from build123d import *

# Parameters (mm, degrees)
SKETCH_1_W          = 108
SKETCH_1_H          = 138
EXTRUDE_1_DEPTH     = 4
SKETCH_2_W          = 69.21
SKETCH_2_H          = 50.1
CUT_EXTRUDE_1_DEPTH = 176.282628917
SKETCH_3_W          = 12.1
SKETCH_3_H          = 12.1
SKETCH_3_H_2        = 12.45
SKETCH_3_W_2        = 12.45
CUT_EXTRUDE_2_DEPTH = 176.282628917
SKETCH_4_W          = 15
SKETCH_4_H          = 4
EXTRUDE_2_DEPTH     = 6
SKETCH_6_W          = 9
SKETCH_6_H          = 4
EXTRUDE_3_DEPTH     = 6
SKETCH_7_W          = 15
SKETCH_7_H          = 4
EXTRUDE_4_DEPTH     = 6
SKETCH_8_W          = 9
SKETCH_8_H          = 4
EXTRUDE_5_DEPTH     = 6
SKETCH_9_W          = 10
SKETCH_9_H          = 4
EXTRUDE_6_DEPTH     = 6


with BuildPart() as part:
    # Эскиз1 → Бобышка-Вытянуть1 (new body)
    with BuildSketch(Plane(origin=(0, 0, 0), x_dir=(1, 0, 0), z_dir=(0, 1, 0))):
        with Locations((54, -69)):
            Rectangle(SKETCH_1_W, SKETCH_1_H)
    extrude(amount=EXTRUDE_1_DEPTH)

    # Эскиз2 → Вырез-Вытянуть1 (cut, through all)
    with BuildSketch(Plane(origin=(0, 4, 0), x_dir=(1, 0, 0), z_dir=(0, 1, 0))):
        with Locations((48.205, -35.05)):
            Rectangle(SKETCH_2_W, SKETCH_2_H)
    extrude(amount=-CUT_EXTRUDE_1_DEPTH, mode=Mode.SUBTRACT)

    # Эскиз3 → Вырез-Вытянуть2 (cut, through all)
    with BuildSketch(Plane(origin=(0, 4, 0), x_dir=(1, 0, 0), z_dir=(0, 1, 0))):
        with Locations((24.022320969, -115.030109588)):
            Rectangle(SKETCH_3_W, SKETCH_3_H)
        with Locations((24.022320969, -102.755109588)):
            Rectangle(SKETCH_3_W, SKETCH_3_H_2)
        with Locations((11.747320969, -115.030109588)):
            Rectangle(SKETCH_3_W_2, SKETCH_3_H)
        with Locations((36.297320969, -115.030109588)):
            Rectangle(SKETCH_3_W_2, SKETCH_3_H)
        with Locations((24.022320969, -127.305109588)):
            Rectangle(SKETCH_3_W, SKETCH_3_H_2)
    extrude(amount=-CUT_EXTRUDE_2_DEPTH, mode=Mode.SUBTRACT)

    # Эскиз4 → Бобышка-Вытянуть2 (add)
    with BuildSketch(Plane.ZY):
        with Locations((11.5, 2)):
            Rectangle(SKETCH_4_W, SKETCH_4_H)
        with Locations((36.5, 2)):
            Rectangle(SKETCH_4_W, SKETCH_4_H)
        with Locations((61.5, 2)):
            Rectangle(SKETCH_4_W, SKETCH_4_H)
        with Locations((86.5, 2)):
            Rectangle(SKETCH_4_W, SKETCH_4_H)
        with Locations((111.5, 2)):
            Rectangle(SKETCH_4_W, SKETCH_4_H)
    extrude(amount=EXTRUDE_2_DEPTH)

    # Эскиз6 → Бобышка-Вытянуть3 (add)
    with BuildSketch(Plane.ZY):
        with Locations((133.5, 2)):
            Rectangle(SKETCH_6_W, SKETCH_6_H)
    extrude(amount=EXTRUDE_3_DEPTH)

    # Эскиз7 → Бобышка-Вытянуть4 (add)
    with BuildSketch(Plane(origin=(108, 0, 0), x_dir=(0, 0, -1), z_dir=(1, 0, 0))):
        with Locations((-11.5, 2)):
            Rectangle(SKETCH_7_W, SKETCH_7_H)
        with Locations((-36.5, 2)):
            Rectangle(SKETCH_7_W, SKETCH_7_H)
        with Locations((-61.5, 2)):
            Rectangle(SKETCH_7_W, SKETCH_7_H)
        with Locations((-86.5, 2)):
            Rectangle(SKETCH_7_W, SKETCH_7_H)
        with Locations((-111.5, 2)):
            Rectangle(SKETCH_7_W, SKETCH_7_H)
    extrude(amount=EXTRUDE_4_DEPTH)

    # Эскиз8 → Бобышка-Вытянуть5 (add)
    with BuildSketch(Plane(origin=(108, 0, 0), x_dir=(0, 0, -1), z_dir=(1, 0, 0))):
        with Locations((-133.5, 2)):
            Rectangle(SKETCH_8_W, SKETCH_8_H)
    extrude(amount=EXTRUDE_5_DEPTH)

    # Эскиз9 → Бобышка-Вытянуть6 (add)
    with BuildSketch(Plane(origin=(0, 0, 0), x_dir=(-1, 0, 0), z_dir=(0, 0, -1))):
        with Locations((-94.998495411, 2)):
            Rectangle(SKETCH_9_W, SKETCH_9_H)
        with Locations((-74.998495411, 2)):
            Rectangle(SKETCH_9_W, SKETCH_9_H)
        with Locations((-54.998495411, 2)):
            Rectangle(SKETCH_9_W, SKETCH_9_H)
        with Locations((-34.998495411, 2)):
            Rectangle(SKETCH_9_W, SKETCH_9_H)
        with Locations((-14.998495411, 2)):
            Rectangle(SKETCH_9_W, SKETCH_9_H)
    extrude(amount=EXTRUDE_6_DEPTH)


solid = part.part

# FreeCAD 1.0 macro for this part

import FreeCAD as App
import Part
import Sketcher
Q = App.Units.Quantity


def add_polygon(sketch, points):
    """Adds a closed chain of lines whose ends are joined by coincident constraints."""
    first, n = sketch.GeometryCount, len(points)
    for a, b in zip(points, points[1:] + points[:1]):
        sketch.addGeometry(Part.LineSegment(App.Vector(*a, 0), App.Vector(*b, 0)), False)
    for i in range(n):
        sketch.addConstraint(Sketcher.Constraint("Coincident", first + i, 2, first + (i + 1) % n, 1))

doc = App.newDocument("Part")
body = doc.addObject("PartDesign::Body", "Body")

# Sketch on XZ plane
sketch1 = body.newObject("Sketcher::SketchObject", "Sketch")
sketch1.AttachmentSupport = (doc.getObject("XZ_Plane"), [""])
sketch1.MapMode = "FlatFace"
add_polygon(sketch1, [(0, 0), (0, 138), (108, 138), (108, 0)])  # lines 0-3
sketch1.addConstraint([
    Sketcher.Constraint("Vertical", 0),
    Sketcher.Constraint("Horizontal", 1),
    Sketcher.Constraint("Vertical", 2),
    Sketcher.Constraint("Horizontal", 3),
    Sketcher.Constraint("Coincident", 3, 2, -1, 1),
    Sketcher.Constraint("DistanceX", 1, 1, 1, 2, Q("108 mm")),
    Sketcher.Constraint("DistanceY", 0, 1, 0, 2, Q("138 mm")),
])
pad1 = body.newObject("PartDesign::Pad", "Pad")
pad1.Profile = sketch1
pad1.Length = 4
pad1.Reversed = True

# Sketch on XZ plane
sketch2 = body.newObject("Sketcher::SketchObject", "Sketch001")
sketch2.AttachmentSupport = (doc.getObject("XZ_Plane"), [""])
sketch2.MapMode = "FlatFace"
sketch2.AttachmentOffset = App.Placement(App.Vector(0, 0, -4), App.Rotation())
add_polygon(sketch2, [(14, 10), (14, 60), (83, 60), (83, 10)])  # lines 0-3
sketch2.addConstraint([
    Sketcher.Constraint("Vertical", 0),
    Sketcher.Constraint("Horizontal", 1),
    Sketcher.Constraint("Vertical", 2),
    Sketcher.Constraint("Horizontal", 3),
    Sketcher.Constraint("DistanceY", 0, 1, 0, 2, Q("50.1 mm")),
    Sketcher.Constraint("DistanceY", -1, 1, 2, 2, Q("10 mm")),
    Sketcher.Constraint("DistanceX", 1, 1, 1, 2, Q("69.21 mm")),
    Sketcher.Constraint("DistanceX", -1, 1, 0, 2, Q("13.6 mm")),
])
pocket1 = body.newObject("PartDesign::Pocket", "Pocket")
pocket1.Profile = sketch2
pocket1.Type = "ThroughAll"
pocket1.Reversed = True

# Sketch on XZ plane
sketch3 = body.newObject("Sketcher::SketchObject", "Sketch002")
sketch3.AttachmentSupport = (doc.getObject("XZ_Plane"), [""])
sketch3.MapMode = "FlatFace"
sketch3.AttachmentOffset = App.Placement(App.Vector(0, 0, -4), App.Rotation())
add_polygon(sketch3, [(30, 109), (30, 97), (18, 97), (18, 109), (6, 109), (6, 121), (18, 121), (18, 134), (30, 134), (30, 121), (43, 121), (43, 109)])  # lines 0-11
sketch3.addConstraint([
    Sketcher.Constraint("Vertical", 0),
    Sketcher.Constraint("Horizontal", 1),
    Sketcher.Constraint("Vertical", 2),
    Sketcher.Constraint("Horizontal", 3),
    Sketcher.Constraint("Vertical", 4),
    Sketcher.Constraint("Horizontal", 5),
    Sketcher.Constraint("Vertical", 6),
    Sketcher.Constraint("Horizontal", 7),
    Sketcher.Constraint("Vertical", 8),
    Sketcher.Constraint("Horizontal", 9),
    Sketcher.Constraint("Vertical", 10),
    Sketcher.Constraint("Horizontal", 11),
    Sketcher.Constraint("Horizontal", 5, 2, 8, 2),
    Sketcher.Constraint("Horizontal", 3, 2, 10, 2),
    Sketcher.Constraint("Vertical", 2, 2, 5, 2),
    Sketcher.Constraint("Vertical", 0, 2, 7, 2),
    Sketcher.Constraint("Equal", 5, 9),
    Sketcher.Constraint("Equal", 11, 0),
    Sketcher.Constraint("Equal", 7, 4),
    Sketcher.Constraint("Equal", 2, 6),
    Sketcher.Constraint("DistanceX", 1, 2, 1, 1, Q("12.1 mm")),
    Sketcher.Constraint("DistanceY", 1, 2, 6, 2, Q("37 mm")),
    Sketcher.Constraint("DistanceX", -1, 1, 0, 2, Q("30.072321 mm")),
    Sketcher.Constraint("DistanceY", -1, 1, 0, 2, Q("96.53011 mm")),
])
pocket2 = body.newObject("PartDesign::Pocket", "Pocket001")
pocket2.Profile = sketch3
pocket2.Type = "ThroughAll"
pocket2.Reversed = True

# Sketch on YZ plane
sketch4 = body.newObject("Sketcher::SketchObject", "Sketch003")
sketch4.AttachmentSupport = (doc.getObject("YZ_Plane"), [""])
sketch4.MapMode = "FlatFace"
add_polygon(sketch4, [(4, 4), (0, 4), (0, 19), (4, 19)])  # lines 0-3
add_polygon(sketch4, [(4, 29), (0, 29), (0, 44), (4, 44)])  # lines 4-7
add_polygon(sketch4, [(4, 54), (0, 54), (0, 69), (4, 69)])  # lines 8-11
add_polygon(sketch4, [(4, 79), (0, 79), (0, 94), (4, 94)])  # lines 12-15
add_polygon(sketch4, [(4, 104), (0, 104), (0, 119), (4, 119)])  # lines 16-19
sketch4.addConstraint([
    Sketcher.Constraint("Horizontal", 0),
    Sketcher.Constraint("Vertical", 1),
    Sketcher.Constraint("Horizontal", 2),
    Sketcher.Constraint("Vertical", 3),
    Sketcher.Constraint("Horizontal", 4),
    Sketcher.Constraint("Vertical", 5),
    Sketcher.Constraint("Horizontal", 6),
    Sketcher.Constraint("Vertical", 7),
    Sketcher.Constraint("Horizontal", 8),
    Sketcher.Constraint("Vertical", 9),
    Sketcher.Constraint("Horizontal", 10),
    Sketcher.Constraint("Vertical", 11),
    Sketcher.Constraint("Horizontal", 12),
    Sketcher.Constraint("Vertical", 13),
    Sketcher.Constraint("Horizontal", 14),
    Sketcher.Constraint("Vertical", 15),
    Sketcher.Constraint("Horizontal", 16),
    Sketcher.Constraint("Vertical", 17),
    Sketcher.Constraint("Horizontal", 18),
    Sketcher.Constraint("Vertical", 19),
    Sketcher.Constraint("PointOnObject", 0, 2, -2),
    Sketcher.Constraint("PointOnObject", 4, 2, -2),
    Sketcher.Constraint("PointOnObject", 8, 2, -2),
    Sketcher.Constraint("PointOnObject", 12, 2, -2),
    Sketcher.Constraint("PointOnObject", 16, 2, -2),
    Sketcher.Constraint("Vertical", 3, 2, 6, 2),
    Sketcher.Constraint("Vertical", 7, 2, 10, 2),
    Sketcher.Constraint("Vertical", 11, 2, 14, 2),
    Sketcher.Constraint("Vertical", 15, 2, 18, 2),
    Sketcher.Constraint("Equal", 3, 5),
    Sketcher.Constraint("Equal", 7, 9),
    Sketcher.Constraint("Equal", 11, 13),
    Sketcher.Constraint("Equal", 15, 17),
    Sketcher.Constraint("DistanceX", 0, 2, 0, 1, Q("4 mm")),
    Sketcher.Constraint("DistanceY", 1, 1, 1, 2, Q("15 mm")),
    Sketcher.Constraint("DistanceY", -1, 1, 0, 2, Q("4 mm")),
    Sketcher.Constraint("DistanceY", -1, 1, 4, 2, Q("29 mm")),
    Sketcher.Constraint("DistanceY", -1, 1, 8, 2, Q("54 mm")),
    Sketcher.Constraint("DistanceY", -1, 1, 12, 2, Q("79 mm")),
    Sketcher.Constraint("DistanceY", -1, 1, 16, 2, Q("104 mm")),
])
pad2 = body.newObject("PartDesign::Pad", "Pad001")
pad2.Profile = sketch4
pad2.Length = 6
pad2.Reversed = True

# Sketch on YZ plane
sketch5 = body.newObject("Sketcher::SketchObject", "Sketch004")
sketch5.AttachmentSupport = (doc.getObject("YZ_Plane"), [""])
sketch5.MapMode = "FlatFace"
add_polygon(sketch5, [(4, 129), (0, 129), (0, 138), (4, 138)])  # lines 0-3
sketch5.addConstraint([
    Sketcher.Constraint("Horizontal", 0),
    Sketcher.Constraint("Vertical", 1),
    Sketcher.Constraint("Horizontal", 2),
    Sketcher.Constraint("Vertical", 3),
    Sketcher.Constraint("PointOnObject", 0, 2, -2),
    Sketcher.Constraint("DistanceX", 0, 2, 0, 1, Q("4 mm")),
    Sketcher.Constraint("DistanceY", 1, 1, 1, 2, Q("9 mm")),
    Sketcher.Constraint("DistanceY", -1, 1, 0, 2, Q("129 mm")),
])
pad3 = body.newObject("PartDesign::Pad", "Pad002")
pad3.Profile = sketch5
pad3.Length = 6
pad3.Reversed = True

# Sketch on YZ plane
sketch6 = body.newObject("Sketcher::SketchObject", "Sketch005")
sketch6.AttachmentSupport = (doc.getObject("YZ_Plane"), [""])
sketch6.MapMode = "FlatFace"
sketch6.AttachmentOffset = App.Placement(App.Vector(0, 0, 108), App.Rotation())
add_polygon(sketch6, [(4, 19), (0, 19), (0, 4), (4, 4)])  # lines 0-3
add_polygon(sketch6, [(4, 44), (0, 44), (0, 29), (4, 29)])  # lines 4-7
add_polygon(sketch6, [(4, 69), (0, 69), (0, 54), (4, 54)])  # lines 8-11
add_polygon(sketch6, [(4, 94), (0, 94), (0, 79), (4, 79)])  # lines 12-15
add_polygon(sketch6, [(4, 119), (0, 119), (0, 104), (4, 104)])  # lines 16-19
sketch6.addConstraint([
    Sketcher.Constraint("Horizontal", 0),
    Sketcher.Constraint("Vertical", 1),
    Sketcher.Constraint("Horizontal", 2),
    Sketcher.Constraint("Vertical", 3),
    Sketcher.Constraint("Horizontal", 4),
    Sketcher.Constraint("Vertical", 5),
    Sketcher.Constraint("Horizontal", 6),
    Sketcher.Constraint("Vertical", 7),
    Sketcher.Constraint("Horizontal", 8),
    Sketcher.Constraint("Vertical", 9),
    Sketcher.Constraint("Horizontal", 10),
    Sketcher.Constraint("Vertical", 11),
    Sketcher.Constraint("Horizontal", 12),
    Sketcher.Constraint("Vertical", 13),
    Sketcher.Constraint("Horizontal", 14),
    Sketcher.Constraint("Vertical", 15),
    Sketcher.Constraint("Horizontal", 16),
    Sketcher.Constraint("Vertical", 17),
    Sketcher.Constraint("Horizontal", 18),
    Sketcher.Constraint("Vertical", 19),
    Sketcher.Constraint("PointOnObject", 0, 2, -2),
    Sketcher.Constraint("PointOnObject", 4, 2, -2),
    Sketcher.Constraint("PointOnObject", 8, 2, -2),
    Sketcher.Constraint("PointOnObject", 12, 2, -2),
    Sketcher.Constraint("PointOnObject", 16, 2, -2),
    Sketcher.Constraint("Vertical", 3, 2, 6, 2),
    Sketcher.Constraint("Vertical", 7, 2, 10, 2),
    Sketcher.Constraint("Vertical", 11, 2, 14, 2),
    Sketcher.Constraint("Vertical", 15, 2, 18, 2),
    Sketcher.Constraint("Equal", 3, 5),
    Sketcher.Constraint("Equal", 7, 9),
    Sketcher.Constraint("Equal", 11, 13),
    Sketcher.Constraint("Equal", 15, 17),
    Sketcher.Constraint("DistanceX", 0, 2, 0, 1, Q("4 mm")),
    Sketcher.Constraint("DistanceY", 1, 2, 1, 1, Q("15 mm")),
    Sketcher.Constraint("DistanceY", -1, 1, 0, 2, Q("19 mm")),
    Sketcher.Constraint("DistanceY", -1, 1, 4, 2, Q("44 mm")),
    Sketcher.Constraint("DistanceY", -1, 1, 8, 2, Q("69 mm")),
    Sketcher.Constraint("DistanceY", -1, 1, 12, 2, Q("94 mm")),
    Sketcher.Constraint("DistanceY", -1, 1, 16, 2, Q("119 mm")),
])
pad4 = body.newObject("PartDesign::Pad", "Pad003")
pad4.Profile = sketch6
pad4.Length = 6

# Sketch on YZ plane
sketch7 = body.newObject("Sketcher::SketchObject", "Sketch006")
sketch7.AttachmentSupport = (doc.getObject("YZ_Plane"), [""])
sketch7.MapMode = "FlatFace"
sketch7.AttachmentOffset = App.Placement(App.Vector(0, 0, 108), App.Rotation())
add_polygon(sketch7, [(4, 138), (0, 138), (0, 129), (4, 129)])  # lines 0-3
sketch7.addConstraint([
    Sketcher.Constraint("Horizontal", 0),
    Sketcher.Constraint("Vertical", 1),
    Sketcher.Constraint("Horizontal", 2),
    Sketcher.Constraint("Vertical", 3),
    Sketcher.Constraint("PointOnObject", 0, 2, -2),
    Sketcher.Constraint("DistanceX", 0, 2, 0, 1, Q("4 mm")),
    Sketcher.Constraint("DistanceY", 1, 2, 1, 1, Q("9 mm")),
    Sketcher.Constraint("DistanceY", -1, 1, 0, 2, Q("138 mm")),
])
pad5 = body.newObject("PartDesign::Pad", "Pad004")
pad5.Profile = sketch7
pad5.Length = 6

# Sketch on XY plane
sketch8 = body.newObject("Sketcher::SketchObject", "Sketch007")
sketch8.AttachmentSupport = (doc.getObject("XY_Plane"), [""])
sketch8.MapMode = "FlatFace"
add_polygon(sketch8, [(100, 4), (100, 0), (90, 0), (90, 4)])  # lines 0-3
add_polygon(sketch8, [(80, 4), (80, 0), (70, 0), (70, 4)])  # lines 4-7
add_polygon(sketch8, [(60, 4), (60, 0), (50, 0), (50, 4)])  # lines 8-11
add_polygon(sketch8, [(40, 4), (40, 0), (30, 0), (30, 4)])  # lines 12-15
add_polygon(sketch8, [(20, 4), (20, 0), (10, 0), (10, 4)])  # lines 16-19
sketch8.addConstraint([
    Sketcher.Constraint("Vertical", 0),
    Sketcher.Constraint("Horizontal", 1),
    Sketcher.Constraint("Vertical", 2),
    Sketcher.Constraint("Horizontal", 3),
    Sketcher.Constraint("Vertical", 4),
    Sketcher.Constraint("Horizontal", 5),
    Sketcher.Constraint("Vertical", 6),
    Sketcher.Constraint("Horizontal", 7),
    Sketcher.Constraint("Vertical", 8),
    Sketcher.Constraint("Horizontal", 9),
    Sketcher.Constraint("Vertical", 10),
    Sketcher.Constraint("Horizontal", 11),
    Sketcher.Constraint("Vertical", 12),
    Sketcher.Constraint("Horizontal", 13),
    Sketcher.Constraint("Vertical", 14),
    Sketcher.Constraint("Horizontal", 15),
    Sketcher.Constraint("Vertical", 16),
    Sketcher.Constraint("Horizontal", 17),
    Sketcher.Constraint("Vertical", 18),
    Sketcher.Constraint("Horizontal", 19),
    Sketcher.Constraint("PointOnObject", 0, 2, -1),
    Sketcher.Constraint("PointOnObject", 4, 2, -1),
    Sketcher.Constraint("PointOnObject", 8, 2, -1),
    Sketcher.Constraint("PointOnObject", 12, 2, -1),
    Sketcher.Constraint("PointOnObject", 16, 2, -1),
    Sketcher.Constraint("Horizontal", 3, 2, 6, 2),
    Sketcher.Constraint("Horizontal", 7, 2, 10, 2),
    Sketcher.Constraint("Horizontal", 11, 2, 14, 2),
    Sketcher.Constraint("Horizontal", 15, 2, 18, 2),
    Sketcher.Constraint("Equal", 3, 5),
    Sketcher.Constraint("Equal", 7, 9),
    Sketcher.Constraint("Equal", 11, 13),
    Sketcher.Constraint("Equal", 15, 17),
    Sketcher.Constraint("DistanceX", 1, 2, 1, 1, Q("10 mm")),
    Sketcher.Constraint("DistanceY", 0, 2, 0, 1, Q("4 mm")),
    Sketcher.Constraint("DistanceX", 4, 2, 1, 2, Q("10 mm")),
    Sketcher.Constraint("DistanceX", 8, 2, 5, 2, Q("10 mm")),
    Sketcher.Constraint("DistanceX", 12, 2, 9, 2, Q("10 mm")),
    Sketcher.Constraint("DistanceX", 16, 2, 13, 2, Q("10 mm")),
    Sketcher.Constraint("DistanceX", -1, 1, 0, 2, Q("99.998495 mm")),
])
pad6 = body.newObject("PartDesign::Pad", "Pad005")
pad6.Profile = sketch8
pad6.Length = 6
pad6.Reversed = True

doc.recompute()
